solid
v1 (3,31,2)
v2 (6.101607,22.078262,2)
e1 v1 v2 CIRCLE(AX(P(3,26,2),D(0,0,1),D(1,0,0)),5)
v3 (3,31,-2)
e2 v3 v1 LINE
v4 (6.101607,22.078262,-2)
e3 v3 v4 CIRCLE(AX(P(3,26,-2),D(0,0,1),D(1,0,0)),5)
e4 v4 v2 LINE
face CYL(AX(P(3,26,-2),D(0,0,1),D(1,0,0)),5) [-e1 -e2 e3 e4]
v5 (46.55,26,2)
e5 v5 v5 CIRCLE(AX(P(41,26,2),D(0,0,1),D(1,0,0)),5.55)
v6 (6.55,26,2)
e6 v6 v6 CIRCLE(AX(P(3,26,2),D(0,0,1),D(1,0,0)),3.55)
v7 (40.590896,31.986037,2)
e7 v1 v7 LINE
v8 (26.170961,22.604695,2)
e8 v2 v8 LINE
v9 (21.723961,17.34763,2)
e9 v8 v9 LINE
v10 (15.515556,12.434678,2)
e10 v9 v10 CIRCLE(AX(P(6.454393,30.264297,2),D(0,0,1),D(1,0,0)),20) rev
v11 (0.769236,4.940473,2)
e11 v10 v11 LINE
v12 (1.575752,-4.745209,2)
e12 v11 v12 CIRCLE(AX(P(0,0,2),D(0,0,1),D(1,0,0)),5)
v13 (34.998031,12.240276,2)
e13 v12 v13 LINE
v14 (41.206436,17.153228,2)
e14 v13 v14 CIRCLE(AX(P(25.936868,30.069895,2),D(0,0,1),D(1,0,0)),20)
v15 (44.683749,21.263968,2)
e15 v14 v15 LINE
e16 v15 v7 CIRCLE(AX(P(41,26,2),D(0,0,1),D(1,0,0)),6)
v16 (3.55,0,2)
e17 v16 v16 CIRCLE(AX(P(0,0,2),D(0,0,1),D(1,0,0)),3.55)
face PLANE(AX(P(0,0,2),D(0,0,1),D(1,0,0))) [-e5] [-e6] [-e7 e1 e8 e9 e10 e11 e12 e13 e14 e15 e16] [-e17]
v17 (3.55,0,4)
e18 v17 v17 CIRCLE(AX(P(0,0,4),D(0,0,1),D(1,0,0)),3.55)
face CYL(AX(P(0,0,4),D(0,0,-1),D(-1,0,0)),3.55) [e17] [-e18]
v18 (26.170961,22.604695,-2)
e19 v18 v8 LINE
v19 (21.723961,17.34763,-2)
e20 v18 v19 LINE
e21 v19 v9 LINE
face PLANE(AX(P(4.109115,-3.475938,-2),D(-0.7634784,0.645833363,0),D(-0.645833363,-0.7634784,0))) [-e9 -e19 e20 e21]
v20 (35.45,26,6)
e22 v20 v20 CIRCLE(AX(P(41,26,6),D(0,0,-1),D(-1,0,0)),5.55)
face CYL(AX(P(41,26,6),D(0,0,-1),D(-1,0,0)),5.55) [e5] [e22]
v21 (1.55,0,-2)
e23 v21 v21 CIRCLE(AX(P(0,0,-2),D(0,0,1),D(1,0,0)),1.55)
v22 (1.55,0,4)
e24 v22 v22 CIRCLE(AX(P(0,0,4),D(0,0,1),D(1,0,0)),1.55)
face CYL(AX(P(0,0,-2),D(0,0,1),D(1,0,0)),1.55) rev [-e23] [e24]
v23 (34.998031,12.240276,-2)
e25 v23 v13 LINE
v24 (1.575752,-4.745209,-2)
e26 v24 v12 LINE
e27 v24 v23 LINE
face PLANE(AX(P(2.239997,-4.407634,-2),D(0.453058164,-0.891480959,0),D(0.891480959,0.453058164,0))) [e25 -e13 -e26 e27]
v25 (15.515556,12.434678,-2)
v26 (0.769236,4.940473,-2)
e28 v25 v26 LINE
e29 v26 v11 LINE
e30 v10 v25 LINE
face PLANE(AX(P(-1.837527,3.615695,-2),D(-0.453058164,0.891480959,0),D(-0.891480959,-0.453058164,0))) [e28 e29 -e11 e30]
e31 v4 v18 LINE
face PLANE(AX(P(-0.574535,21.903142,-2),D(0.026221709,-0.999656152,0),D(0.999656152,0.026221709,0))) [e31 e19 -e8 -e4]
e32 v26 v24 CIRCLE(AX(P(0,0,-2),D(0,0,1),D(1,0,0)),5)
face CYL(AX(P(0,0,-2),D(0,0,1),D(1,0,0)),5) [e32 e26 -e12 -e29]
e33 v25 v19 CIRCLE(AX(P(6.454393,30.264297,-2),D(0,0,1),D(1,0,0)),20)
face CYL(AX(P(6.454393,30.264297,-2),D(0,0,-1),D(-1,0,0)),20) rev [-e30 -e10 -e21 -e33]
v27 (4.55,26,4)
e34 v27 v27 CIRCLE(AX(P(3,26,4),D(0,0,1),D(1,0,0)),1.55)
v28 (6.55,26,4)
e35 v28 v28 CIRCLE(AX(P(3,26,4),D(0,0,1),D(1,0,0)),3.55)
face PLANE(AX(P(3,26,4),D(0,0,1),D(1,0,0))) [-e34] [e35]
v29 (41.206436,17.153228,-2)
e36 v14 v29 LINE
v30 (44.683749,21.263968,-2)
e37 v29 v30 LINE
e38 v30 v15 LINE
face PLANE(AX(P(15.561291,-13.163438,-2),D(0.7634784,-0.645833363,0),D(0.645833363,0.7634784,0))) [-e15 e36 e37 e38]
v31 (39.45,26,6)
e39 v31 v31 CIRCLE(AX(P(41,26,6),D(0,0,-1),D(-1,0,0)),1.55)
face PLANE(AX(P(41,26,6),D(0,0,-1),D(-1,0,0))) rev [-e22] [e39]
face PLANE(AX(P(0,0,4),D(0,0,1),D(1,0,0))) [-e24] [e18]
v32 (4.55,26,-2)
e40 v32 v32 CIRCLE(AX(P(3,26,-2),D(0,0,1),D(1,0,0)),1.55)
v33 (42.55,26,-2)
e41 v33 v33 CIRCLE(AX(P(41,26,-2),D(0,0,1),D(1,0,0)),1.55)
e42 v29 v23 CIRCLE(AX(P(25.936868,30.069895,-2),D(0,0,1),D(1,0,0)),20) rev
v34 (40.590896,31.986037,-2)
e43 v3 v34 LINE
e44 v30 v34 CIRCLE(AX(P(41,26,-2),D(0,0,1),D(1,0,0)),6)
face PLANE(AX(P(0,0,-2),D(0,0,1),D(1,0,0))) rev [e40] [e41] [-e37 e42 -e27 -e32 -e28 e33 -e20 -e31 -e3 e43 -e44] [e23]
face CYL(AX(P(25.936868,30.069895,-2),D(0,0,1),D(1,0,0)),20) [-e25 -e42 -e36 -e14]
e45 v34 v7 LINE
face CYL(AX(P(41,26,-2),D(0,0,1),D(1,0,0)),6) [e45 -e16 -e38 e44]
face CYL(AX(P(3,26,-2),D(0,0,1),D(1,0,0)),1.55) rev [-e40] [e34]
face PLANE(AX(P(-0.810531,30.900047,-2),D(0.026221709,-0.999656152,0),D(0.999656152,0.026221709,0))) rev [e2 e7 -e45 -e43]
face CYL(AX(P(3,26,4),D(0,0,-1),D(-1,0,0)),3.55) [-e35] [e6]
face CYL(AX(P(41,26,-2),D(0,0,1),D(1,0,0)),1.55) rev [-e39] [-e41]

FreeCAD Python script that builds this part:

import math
import FreeCAD as App
import Part
import Sketcher
from FreeCAD import Vector
Q = App.Units.Quantity


def edges_at(feature, points):
    """Names of the edges that pass closest to the given points."""
    edges = feature.Shape.Edges
    near = lambda p: min(range(len(edges)), key=lambda i: edges[i].distToShape(Part.Vertex(*p))[0])
    return sorted({f"Edge{near(p) + 1}" for p in points})

doc = App.newDocument("Part")
body = doc.addObject("PartDesign::Body", "Body")

# Sketch on XY plane
sketch1 = body.newObject("Sketcher::SketchObject", "Sketch")
sketch1.AttachmentSupport = (doc.getObject("XY_Plane"), [""])
sketch1.MapMode = "FlatFace"
sketch1.addGeometry(Part.LineSegment(Vector(1.575752, -4.745209, 0), Vector(38.598254, 14.06994, 0)), False)
sketch1.addGeometry(Part.LineSegment(Vector(38.598254, 14.06994, 0), Vector(44.683749, 21.263968, 0)), False)
sketch1.addGeometry(Part.ArcOfCircle(Part.Circle(Vector(41, 26, 0), Vector(0, 0, 1), 6), math.radians(-52.123748), math.radians(93.909686)), False)
sketch1.addGeometry(Part.LineSegment(Vector(40.590896, 31.986037, 0), Vector(3, 31, 0)), False)
sketch1.addGeometry(Part.ArcOfCircle(Part.Circle(Vector(3, 26, 0), Vector(0, 0, 1), 5), math.radians(90), math.radians(308.339616)), False)
sketch1.addGeometry(Part.LineSegment(Vector(6.101607, 22.078262, 0), Vector(26.170961, 22.604695, 0)), False)
sketch1.addGeometry(Part.LineSegment(Vector(26.170961, 22.604695, 0), Vector(19.11578, 14.264342, 0)), False)
sketch1.addGeometry(Part.LineSegment(Vector(19.11578, 14.264342, 0), Vector(0.769236, 4.940473, 0)), False)
sketch1.addGeometry(Part.ArcOfCircle(Part.Circle(Vector(0, 0, 0), Vector(0, 0, 1), 5), math.radians(81.150061), math.radians(288.369897)), False)
sketch1.addGeometry(Part.Circle(Vector(0, 0, 0), Vector(0, 0, 1), 1.55), False)
sketch1.addGeometry(Part.Circle(Vector(3, 26, 0), Vector(0, 0, 1), 1.55), False)
sketch1.addGeometry(Part.Circle(Vector(41, 26, 0), Vector(0, 0, 1), 1.55), False)
sketch1.addConstraint(Sketcher.Constraint("Coincident", 0, 2, 1, 1))
sketch1.addConstraint(Sketcher.Constraint("Coincident", 1, 2, 2, 1))
sketch1.addConstraint(Sketcher.Constraint("Coincident", 2, 2, 3, 1))
sketch1.addConstraint(Sketcher.Constraint("Coincident", 3, 2, 4, 1))
sketch1.addConstraint(Sketcher.Constraint("Coincident", 4, 2, 5, 1))
sketch1.addConstraint(Sketcher.Constraint("Coincident", 5, 2, 6, 1))
sketch1.addConstraint(Sketcher.Constraint("Coincident", 6, 2, 7, 1))
sketch1.addConstraint(Sketcher.Constraint("Coincident", 7, 2, 8, 1))
sketch1.addConstraint(Sketcher.Constraint("Coincident", 8, 2, 0, 1))
sketch1.addConstraint(Sketcher.Constraint("Coincident", 8, 3, -1, 1))
sketch1.addConstraint(Sketcher.Constraint("Coincident", 9, 3, -1, 1))
sketch1.addConstraint(Sketcher.Constraint("Coincident", 10, 3, 4, 3))
sketch1.addConstraint(Sketcher.Constraint("Coincident", 11, 3, 2, 3))
sketch1.addConstraint(Sketcher.Constraint("Equal", 4, 8))
sketch1.addConstraint(Sketcher.Constraint("Equal", 9, 10))
sketch1.addConstraint(Sketcher.Constraint("Equal", 10, 11))
sketch1.addConstraint(Sketcher.Constraint("Parallel", 3, 5))
sketch1.addConstraint(Sketcher.Constraint("Parallel", 1, 6))
sketch1.addConstraint(Sketcher.Constraint("Parallel", 0, 7))
sketch1.addConstraint(Sketcher.Constraint("Horizontal", 2, 3, 4, 3))
sketch1.addConstraint(Sketcher.Constraint("Vertical", 10, 3, 3, 2))
sketch1.addConstraint(Sketcher.Constraint("Radius", 2, Q("6 mm")))
sketch1.addConstraint(Sketcher.Constraint("Radius", 4, Q("5 mm")))
sketch1.addConstraint(Sketcher.Constraint("Diameter", 9, Q("3.1 mm")))
sketch1.addConstraint(Sketcher.Constraint("DistanceX", -1, 1, 2, 3, Q("41 mm")))
sketch1.addConstraint(Sketcher.Constraint("DistanceY", -1, 1, 2, 3, Q("26 mm")))
sketch1.addConstraint(Sketcher.Constraint("DistanceX", -1, 1, 4, 3, Q("3 mm")))
sketch1.addConstraint(Sketcher.Constraint("Distance", 1, Q("9.4227 mm")))
sketch1.addConstraint(Sketcher.Constraint("Distance", 6, Q("10.924151 mm")))
sketch1.addConstraint(Sketcher.Constraint("Distance", 7, Q("20.57985 mm")))
sketch1.addConstraint(Sketcher.Constraint("DistanceY", -1, 1, 0, 2, Q("14.06994 mm")))
sketch1.addConstraint(Sketcher.Constraint("DistanceX", -1, 1, 1, 2, Q("44.683749 mm")))
sketch1.addConstraint(Sketcher.Constraint("DistanceY", -1, 1, 4, 2, Q("22.078262 mm")))
sketch1.addConstraint(Sketcher.Constraint("DistanceX", -1, 1, 5, 2, Q("26.170961 mm")))
sketch1.addConstraint(Sketcher.Constraint("DistanceY", 8, 2, -1, 1, Q("4.745209 mm")))
pad1 = body.newObject("PartDesign::Pad", "Pad")
pad1.Profile = sketch1
pad1.Type = "TwoLengths"
pad1.Length = 2
pad1.Length2 = 2
doc.recompute()

fillet = body.newObject("PartDesign::Fillet", "Fillet")
fillet.Base = (pad1, edges_at(pad1, [(38.598, 14.07, 0), (19.116, 14.264, 0)]))
fillet.Radius = 20

# Sketch on XY plane
sketch2 = body.newObject("Sketcher::SketchObject", "Sketch001")
sketch2.AttachmentSupport = (doc.getObject("XY_Plane"), [""])
sketch2.MapMode = "FlatFace"
sketch2.AttachmentOffset = App.Placement(Vector(0, 0, 2), App.Rotation())
sketch2.addGeometry(Part.Circle(Vector(41, 26, 0), Vector(0, 0, 1), 5.55), False)
sketch2.addGeometry(Part.Circle(Vector(41, 26, 0), Vector(0, 0, 1), 1.55), False)
sketch2.addConstraint(Sketcher.Constraint("Coincident", 1, 3, 0, 3))
sketch2.addConstraint(Sketcher.Constraint("Diameter", 0, Q("11.1 mm")))
sketch2.addConstraint(Sketcher.Constraint("Diameter", 1, Q("3.1 mm")))
sketch2.addConstraint(Sketcher.Constraint("DistanceX", -1, 1, 0, 3, Q("41 mm")))
sketch2.addConstraint(Sketcher.Constraint("DistanceY", -1, 1, 0, 3, Q("26 mm")))
pad2 = body.newObject("PartDesign::Pad", "Pad001")
pad2.Profile = sketch2
pad2.Length = 4

# Sketch on XY plane
sketch3 = body.newObject("Sketcher::SketchObject", "Sketch002")
sketch3.AttachmentSupport = (doc.getObject("XY_Plane"), [""])
sketch3.MapMode = "FlatFace"
sketch3.AttachmentOffset = App.Placement(Vector(0, 0, 2), App.Rotation())
sketch3.addGeometry(Part.Circle(Vector(3, 26, 0), Vector(0, 0, 1), 3.55), False)
sketch3.addGeometry(Part.Circle(Vector(3, 26, 0), Vector(0, 0, 1), 1.55), False)
sketch3.addGeometry(Part.Circle(Vector(0, 0, 0), Vector(0, 0, 1), 3.55), False)
sketch3.addGeometry(Part.Circle(Vector(0, 0, 0), Vector(0, 0, 1), 1.55), False)
sketch3.addConstraint(Sketcher.Constraint("Coincident", 2, 3, -1, 1))
sketch3.addConstraint(Sketcher.Constraint("Coincident", 3, 3, -1, 1))
sketch3.addConstraint(Sketcher.Constraint("Coincident", 1, 3, 0, 3))
sketch3.addConstraint(Sketcher.Constraint("Equal", 0, 2))
sketch3.addConstraint(Sketcher.Constraint("Equal", 1, 3))
sketch3.addConstraint(Sketcher.Constraint("Diameter", 0, Q("7.1 mm")))
sketch3.addConstraint(Sketcher.Constraint("Diameter", 1, Q("3.1 mm")))
sketch3.addConstraint(Sketcher.Constraint("DistanceX", -1, 1, 0, 3, Q("3 mm")))
sketch3.addConstraint(Sketcher.Constraint("DistanceY", -1, 1, 0, 3, Q("26 mm")))
pad3 = body.newObject("PartDesign::Pad", "Pad002")
pad3.Profile = sketch3
pad3.Length = 2

doc.recompute()
